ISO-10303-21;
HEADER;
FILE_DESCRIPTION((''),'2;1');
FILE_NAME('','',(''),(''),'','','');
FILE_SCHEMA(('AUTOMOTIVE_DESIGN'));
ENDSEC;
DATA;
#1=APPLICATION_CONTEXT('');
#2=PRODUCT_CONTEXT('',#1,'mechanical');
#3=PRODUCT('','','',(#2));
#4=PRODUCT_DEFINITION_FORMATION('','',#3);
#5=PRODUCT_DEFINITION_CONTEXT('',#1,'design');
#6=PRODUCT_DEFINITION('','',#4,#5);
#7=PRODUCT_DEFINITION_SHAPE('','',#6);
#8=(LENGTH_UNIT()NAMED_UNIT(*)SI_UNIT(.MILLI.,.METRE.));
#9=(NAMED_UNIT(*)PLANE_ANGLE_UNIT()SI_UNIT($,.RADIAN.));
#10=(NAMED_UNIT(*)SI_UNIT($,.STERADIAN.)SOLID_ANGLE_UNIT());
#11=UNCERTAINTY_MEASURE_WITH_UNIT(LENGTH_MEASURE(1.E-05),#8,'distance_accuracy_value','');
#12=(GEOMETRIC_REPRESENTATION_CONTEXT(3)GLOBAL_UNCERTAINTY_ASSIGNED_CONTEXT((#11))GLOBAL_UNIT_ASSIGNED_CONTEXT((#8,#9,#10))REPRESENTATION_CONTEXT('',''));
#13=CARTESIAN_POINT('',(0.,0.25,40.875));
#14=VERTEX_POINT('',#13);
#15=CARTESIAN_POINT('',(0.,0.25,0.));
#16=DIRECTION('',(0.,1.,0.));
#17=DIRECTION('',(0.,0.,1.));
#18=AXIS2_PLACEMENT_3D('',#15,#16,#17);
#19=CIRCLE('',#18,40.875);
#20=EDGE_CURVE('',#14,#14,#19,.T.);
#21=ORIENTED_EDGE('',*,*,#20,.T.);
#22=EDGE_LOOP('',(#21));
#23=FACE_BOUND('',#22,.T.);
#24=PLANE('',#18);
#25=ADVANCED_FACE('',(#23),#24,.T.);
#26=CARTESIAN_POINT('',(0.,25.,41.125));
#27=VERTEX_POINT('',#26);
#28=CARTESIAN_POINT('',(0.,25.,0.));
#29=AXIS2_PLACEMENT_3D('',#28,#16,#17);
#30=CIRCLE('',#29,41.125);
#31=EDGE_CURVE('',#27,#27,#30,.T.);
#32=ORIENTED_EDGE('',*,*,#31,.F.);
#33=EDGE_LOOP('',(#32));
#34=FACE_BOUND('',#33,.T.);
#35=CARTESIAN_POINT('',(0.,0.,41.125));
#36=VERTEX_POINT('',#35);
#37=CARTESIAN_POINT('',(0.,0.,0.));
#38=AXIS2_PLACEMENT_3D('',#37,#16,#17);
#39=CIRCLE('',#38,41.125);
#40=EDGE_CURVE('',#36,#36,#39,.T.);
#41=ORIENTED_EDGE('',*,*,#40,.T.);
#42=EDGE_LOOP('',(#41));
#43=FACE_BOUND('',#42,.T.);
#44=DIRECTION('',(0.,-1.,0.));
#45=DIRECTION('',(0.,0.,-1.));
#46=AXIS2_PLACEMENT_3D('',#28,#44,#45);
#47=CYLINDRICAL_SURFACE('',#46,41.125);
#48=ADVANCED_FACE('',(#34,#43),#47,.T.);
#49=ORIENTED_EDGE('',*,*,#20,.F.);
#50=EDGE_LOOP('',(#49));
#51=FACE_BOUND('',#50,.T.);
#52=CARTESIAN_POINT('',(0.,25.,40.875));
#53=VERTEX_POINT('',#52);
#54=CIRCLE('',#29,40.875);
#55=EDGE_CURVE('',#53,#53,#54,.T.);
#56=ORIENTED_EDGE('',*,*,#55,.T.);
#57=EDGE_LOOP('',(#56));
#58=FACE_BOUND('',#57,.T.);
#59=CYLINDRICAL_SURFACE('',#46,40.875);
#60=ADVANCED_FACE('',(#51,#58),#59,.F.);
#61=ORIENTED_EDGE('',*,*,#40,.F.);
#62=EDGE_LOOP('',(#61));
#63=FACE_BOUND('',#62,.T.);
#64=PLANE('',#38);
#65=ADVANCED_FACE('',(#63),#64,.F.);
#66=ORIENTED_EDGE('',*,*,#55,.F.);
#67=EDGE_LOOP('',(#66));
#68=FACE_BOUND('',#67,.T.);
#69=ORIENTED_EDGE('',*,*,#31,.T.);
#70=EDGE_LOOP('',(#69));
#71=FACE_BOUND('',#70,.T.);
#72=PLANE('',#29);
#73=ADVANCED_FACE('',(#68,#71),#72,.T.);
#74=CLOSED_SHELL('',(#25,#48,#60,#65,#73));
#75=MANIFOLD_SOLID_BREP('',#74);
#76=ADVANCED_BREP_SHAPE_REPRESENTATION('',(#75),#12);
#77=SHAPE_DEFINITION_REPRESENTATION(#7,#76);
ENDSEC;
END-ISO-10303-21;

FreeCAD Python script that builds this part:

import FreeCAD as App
import Part
import Sketcher
from FreeCAD import Vector


def faces_at(feature, points):
    """Names of the faces that lie closest to the given points."""
    faces = feature.Shape.Faces
    near = lambda p: min(range(len(faces)), key=lambda i: faces[i].distToShape(Part.Vertex(*p))[0])
    return sorted({f"Face{near(p) + 1}" for p in points})

doc = App.newDocument("Part")
body = doc.addObject("PartDesign::Body", "Body")

# Sketch on XZ plane
sketch1 = body.newObject("Sketcher::SketchObject", "Sketch")
sketch1.AttachmentSupport = (doc.getObject("XZ_Plane"), [""])
sketch1.MapMode = "FlatFace"
sketch1.addGeometry(Part.Circle(Vector(0, 0, 0), Vector(0, 0, 1), 41), False)
sketch1.addConstraint(Sketcher.Constraint("Coincident", 0, 3, -1, 1))
sketch1.addConstraint(Sketcher.Constraint("Diameter", 0, 82.25))
pad1 = body.newObject("PartDesign::Pad", "Pad")
pad1.Profile = sketch1
pad1.Length = 25
pad1.Reversed = True
doc.recompute()

thickness = body.newObject("PartDesign::Thickness", "Thickness")
thickness.Base = (pad1, faces_at(pad1, [(0, 25, 0)]))
thickness.Value = 0.25
thickness.Reversed = True
thickness.Join = "Intersection"

doc.recompute()
